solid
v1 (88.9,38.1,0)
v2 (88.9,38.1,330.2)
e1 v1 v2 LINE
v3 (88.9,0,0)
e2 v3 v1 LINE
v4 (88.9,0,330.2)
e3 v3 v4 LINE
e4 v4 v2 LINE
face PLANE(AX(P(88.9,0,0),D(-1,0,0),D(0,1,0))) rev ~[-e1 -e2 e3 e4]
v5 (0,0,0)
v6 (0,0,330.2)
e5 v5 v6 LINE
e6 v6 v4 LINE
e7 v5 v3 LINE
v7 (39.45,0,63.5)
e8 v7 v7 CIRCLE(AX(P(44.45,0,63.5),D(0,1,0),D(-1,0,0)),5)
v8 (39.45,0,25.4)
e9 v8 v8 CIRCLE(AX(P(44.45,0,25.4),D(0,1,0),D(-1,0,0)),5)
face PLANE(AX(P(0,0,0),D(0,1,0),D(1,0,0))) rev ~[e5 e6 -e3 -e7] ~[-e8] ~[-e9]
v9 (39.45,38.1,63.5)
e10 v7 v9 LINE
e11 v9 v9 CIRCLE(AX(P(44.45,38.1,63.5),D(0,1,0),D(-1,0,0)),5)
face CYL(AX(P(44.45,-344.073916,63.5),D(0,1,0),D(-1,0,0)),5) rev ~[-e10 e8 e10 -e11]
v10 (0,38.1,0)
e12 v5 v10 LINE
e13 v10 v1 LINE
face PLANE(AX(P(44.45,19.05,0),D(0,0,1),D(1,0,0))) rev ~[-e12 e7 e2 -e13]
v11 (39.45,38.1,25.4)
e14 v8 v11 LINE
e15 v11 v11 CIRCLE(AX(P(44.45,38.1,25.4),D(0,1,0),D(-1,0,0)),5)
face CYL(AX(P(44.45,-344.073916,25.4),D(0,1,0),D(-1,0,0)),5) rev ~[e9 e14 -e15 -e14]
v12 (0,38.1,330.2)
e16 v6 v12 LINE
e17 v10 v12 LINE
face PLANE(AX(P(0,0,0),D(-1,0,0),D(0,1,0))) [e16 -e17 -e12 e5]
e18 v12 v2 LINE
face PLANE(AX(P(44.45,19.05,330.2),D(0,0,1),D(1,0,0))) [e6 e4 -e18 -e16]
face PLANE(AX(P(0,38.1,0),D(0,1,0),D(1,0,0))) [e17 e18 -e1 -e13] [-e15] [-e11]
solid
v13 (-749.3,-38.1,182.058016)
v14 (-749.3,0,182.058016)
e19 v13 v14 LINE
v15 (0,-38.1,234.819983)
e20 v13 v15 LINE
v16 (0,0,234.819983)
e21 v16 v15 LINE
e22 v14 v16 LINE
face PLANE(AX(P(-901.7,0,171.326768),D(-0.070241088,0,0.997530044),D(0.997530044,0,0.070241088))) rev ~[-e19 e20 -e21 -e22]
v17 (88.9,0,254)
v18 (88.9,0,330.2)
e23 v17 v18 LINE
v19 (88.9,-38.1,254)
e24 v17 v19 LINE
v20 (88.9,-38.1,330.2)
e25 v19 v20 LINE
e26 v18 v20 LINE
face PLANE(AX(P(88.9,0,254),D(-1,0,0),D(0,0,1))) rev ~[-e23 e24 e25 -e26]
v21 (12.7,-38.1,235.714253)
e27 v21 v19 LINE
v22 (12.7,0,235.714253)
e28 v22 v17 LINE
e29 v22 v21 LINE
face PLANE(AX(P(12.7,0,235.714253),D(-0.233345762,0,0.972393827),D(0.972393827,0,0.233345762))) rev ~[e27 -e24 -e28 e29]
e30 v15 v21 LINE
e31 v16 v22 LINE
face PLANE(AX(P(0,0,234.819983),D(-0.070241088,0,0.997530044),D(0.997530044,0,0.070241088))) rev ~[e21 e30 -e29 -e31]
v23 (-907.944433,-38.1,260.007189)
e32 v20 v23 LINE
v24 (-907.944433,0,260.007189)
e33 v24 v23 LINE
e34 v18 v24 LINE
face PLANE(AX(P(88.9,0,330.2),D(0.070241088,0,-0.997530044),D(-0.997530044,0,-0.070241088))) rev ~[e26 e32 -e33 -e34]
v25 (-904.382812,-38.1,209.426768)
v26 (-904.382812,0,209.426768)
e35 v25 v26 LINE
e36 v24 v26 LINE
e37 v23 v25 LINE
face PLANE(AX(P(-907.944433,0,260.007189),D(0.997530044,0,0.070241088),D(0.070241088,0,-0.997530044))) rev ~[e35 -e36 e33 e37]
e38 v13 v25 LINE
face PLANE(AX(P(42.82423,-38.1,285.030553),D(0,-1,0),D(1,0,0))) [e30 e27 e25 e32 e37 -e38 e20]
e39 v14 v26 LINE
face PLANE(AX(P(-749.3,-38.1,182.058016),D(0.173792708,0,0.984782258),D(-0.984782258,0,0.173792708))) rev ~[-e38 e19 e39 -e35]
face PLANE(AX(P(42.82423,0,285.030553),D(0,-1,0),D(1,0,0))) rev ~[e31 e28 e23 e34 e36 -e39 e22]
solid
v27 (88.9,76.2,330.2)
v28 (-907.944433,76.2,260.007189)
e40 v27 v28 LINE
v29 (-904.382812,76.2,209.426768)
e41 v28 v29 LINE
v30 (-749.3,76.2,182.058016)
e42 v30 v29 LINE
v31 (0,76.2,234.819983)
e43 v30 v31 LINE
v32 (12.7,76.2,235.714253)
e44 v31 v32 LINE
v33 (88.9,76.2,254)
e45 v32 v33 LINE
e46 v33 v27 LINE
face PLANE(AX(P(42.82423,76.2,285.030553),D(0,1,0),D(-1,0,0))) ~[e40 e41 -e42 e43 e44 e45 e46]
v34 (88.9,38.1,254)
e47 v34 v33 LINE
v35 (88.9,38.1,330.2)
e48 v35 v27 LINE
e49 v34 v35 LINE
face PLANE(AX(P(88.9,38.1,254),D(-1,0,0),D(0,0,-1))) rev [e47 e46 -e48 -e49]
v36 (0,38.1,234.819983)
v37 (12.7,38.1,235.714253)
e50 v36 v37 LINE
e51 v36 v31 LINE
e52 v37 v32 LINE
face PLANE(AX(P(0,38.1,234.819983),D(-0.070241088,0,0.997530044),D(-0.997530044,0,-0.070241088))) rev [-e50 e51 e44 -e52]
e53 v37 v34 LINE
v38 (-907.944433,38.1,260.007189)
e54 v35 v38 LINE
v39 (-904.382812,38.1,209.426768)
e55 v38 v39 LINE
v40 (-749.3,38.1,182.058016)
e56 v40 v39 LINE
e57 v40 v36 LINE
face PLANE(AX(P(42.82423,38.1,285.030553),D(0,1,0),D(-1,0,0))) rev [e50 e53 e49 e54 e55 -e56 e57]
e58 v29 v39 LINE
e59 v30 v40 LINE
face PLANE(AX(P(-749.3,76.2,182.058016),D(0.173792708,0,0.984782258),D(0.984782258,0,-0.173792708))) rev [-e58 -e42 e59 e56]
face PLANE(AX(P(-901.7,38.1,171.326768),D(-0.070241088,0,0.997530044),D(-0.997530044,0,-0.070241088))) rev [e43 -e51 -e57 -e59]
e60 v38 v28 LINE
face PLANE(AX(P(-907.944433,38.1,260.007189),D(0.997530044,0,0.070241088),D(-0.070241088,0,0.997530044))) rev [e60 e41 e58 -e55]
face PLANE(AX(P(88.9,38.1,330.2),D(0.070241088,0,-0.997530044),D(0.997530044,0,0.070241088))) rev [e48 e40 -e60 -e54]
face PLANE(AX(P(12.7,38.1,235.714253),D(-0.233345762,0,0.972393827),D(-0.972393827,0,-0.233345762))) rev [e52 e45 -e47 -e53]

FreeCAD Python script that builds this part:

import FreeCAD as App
import Part
import Sketcher
from FreeCAD import Vector
Q = App.Units.Quantity


def add_polygon(sketch, points):
    """Adds a closed chain of lines whose ends are joined by coincident constraints."""
    first, n = sketch.GeometryCount, len(points)
    for a, b in zip(points, points[1:] + points[:1]):
        sketch.addGeometry(Part.LineSegment(App.Vector(*a, 0), App.Vector(*b, 0)), False)
    for i in range(n):
        sketch.addConstraint(Sketcher.Constraint("Coincident", first + i, 2, first + (i + 1) % n, 1))

doc = App.newDocument("Part")
body = doc.addObject("PartDesign::Body", "Body")

# Sketch on XY plane
sketch1 = body.newObject("Sketcher::SketchObject", "Sketch")
sketch1.AttachmentSupport = (doc.getObject("XY_Plane"), [""])
sketch1.MapMode = "FlatFace"
add_polygon(sketch1, [(0, 38), (0, 0), (89, 0), (89, 38)])  # lines 0-3
sketch1.addConstraint([
    Sketcher.Constraint("Vertical", 0),
    Sketcher.Constraint("Horizontal", 1),
    Sketcher.Constraint("Vertical", 2),
    Sketcher.Constraint("Horizontal", 3),
    Sketcher.Constraint("Coincident", 0, 2, -1, 1),
    Sketcher.Constraint("DistanceX", 1, 1, 1, 2, Q("3.5 in")),
    Sketcher.Constraint("DistanceY", 0, 2, 0, 1, Q("1.5 in")),
])
pad1 = body.newObject("PartDesign::Pad", "Pad")
pad1.Profile = sketch1
pad1.Length = Q("13 in")

# Sketch on XZ plane
sketch2 = body.newObject("Sketcher::SketchObject", "Sketch001")
sketch2.AttachmentSupport = (doc.getObject("XZ_Plane"), [""])
sketch2.MapMode = "FlatFace"
sketch2.addGeometry([
    Part.Circle(Vector(44, 64, 0), Vector(0, 0, 1), 5),
    Part.Circle(Vector(44, 25, 0), Vector(0, 0, 1), 5),
], False)
sketch2.addConstraint([
    Sketcher.Constraint("Equal", 0, 1),
    Sketcher.Constraint("Vertical", 0, 3, 1, 3),
    Sketcher.Constraint("DistanceY", -1, 1, 1, 3, Q("1 in")),
    Sketcher.Constraint("DistanceY", -1, 1, 0, 3, Q("2.5 in")),
    Sketcher.Constraint("Diameter", 0, 10.0),
    Sketcher.Constraint("DistanceX", -1, 1, 0, 3, Q("1.75 in")),
])
doc.recompute()
hole = body.newObject("PartDesign::Hole", "Hole")
hole.Profile = sketch2
hole.ThreadType = "None"
hole.Diameter = 10
hole.DepthType = "ThroughAll"
body2 = doc.addObject("PartDesign::Body", "Body001")

# Sketch on XZ plane
sketch3 = body2.newObject("Sketcher::SketchObject", "Sketch002")
sketch3.AttachmentSupport = (doc.getObject("XZ_Plane001"), [""])
sketch3.MapMode = "FlatFace"
add_polygon(sketch3, [(89, 254), (89, 330), (-908, 260), (-902, 171), (0, 235), (13, 236)])  # lines 0-5
sketch3.addConstraint([
    Sketcher.Constraint("Vertical", 0),
    Sketcher.Constraint("PointOnObject", 3, 2, -2),
    Sketcher.Constraint("Perpendicular", 1, 2),
    Sketcher.Constraint("Perpendicular", 2, 3),
    Sketcher.Constraint("Parallel", 3, 4),
    Sketcher.Constraint("DistanceY", 0, 1, 0, 2, Q("3 in")),
    Sketcher.Constraint("DistanceY", -1, 1, 0, 2, Q("13 in")),
    Sketcher.Constraint("DistanceX", 2, 2, 0, 2, Q("39 in")),
    Sketcher.Constraint("DistanceX", 4, 2, 0, 2, Q("3 in")),
    Sketcher.Constraint("Distance", 2, Q("3.5 in")),
    Sketcher.Constraint("DistanceX", -1, 1, 0, 2, Q("3.5 in")),
    Sketcher.Constraint("Distance", 1, 999.312691),
])
pad2 = body2.newObject("PartDesign::Pad", "Pad001")
pad2.Profile = sketch3
pad2.Length = Q("1.5 in")

# Sketch on XZ plane
sketch4 = body2.newObject("Sketcher::SketchObject", "Sketch003")
sketch4.AttachmentSupport = (doc.getObject("XZ_Plane001"), [""])
sketch4.MapMode = "FlatFace"
sketch4.AttachmentOffset = App.Placement(Vector(0, 0, 1.5 * 25.4), App.Rotation())
add_polygon(sketch4, [(-904, 209), (-902, 171), (-749, 182)])  # lines 0-2
sketch4.addConstraint([
    Sketcher.Constraint("Perpendicular", 0, 1),
    Sketcher.Constraint("DistanceX", 0, 2, 1, 2, Q("6 in")),
    Sketcher.Constraint("DistanceX", 0, 2, -1, 1, Q("35.5 in")),
    Sketcher.Constraint("DistanceY", 0, 2, 2, 2, Q("1.5 in")),
    Sketcher.Constraint("Distance", 0, 38.194338),
    Sketcher.Constraint("DistanceY", -1, 1, 0, 2, 171.326768),
])
pocket1 = body2.newObject("PartDesign::Pocket", "Pocket")
pocket1.Profile = sketch4
pocket1.Type = "ThroughAll"
body3 = doc.addObject("PartDesign::Body", "Body002")
doc.recompute()

mirroring = doc.addObject("Part::Mirroring", "Mirroring")
mirroring.Source = body2
mirroring.Base = Vector(44.45, 19.05, 165.74908)
mirroring.Normal = Vector(0, -1, 0)
body3.BaseFeature = mirroring
doc.recompute()
mirroring.Visibility = False

doc.recompute()
